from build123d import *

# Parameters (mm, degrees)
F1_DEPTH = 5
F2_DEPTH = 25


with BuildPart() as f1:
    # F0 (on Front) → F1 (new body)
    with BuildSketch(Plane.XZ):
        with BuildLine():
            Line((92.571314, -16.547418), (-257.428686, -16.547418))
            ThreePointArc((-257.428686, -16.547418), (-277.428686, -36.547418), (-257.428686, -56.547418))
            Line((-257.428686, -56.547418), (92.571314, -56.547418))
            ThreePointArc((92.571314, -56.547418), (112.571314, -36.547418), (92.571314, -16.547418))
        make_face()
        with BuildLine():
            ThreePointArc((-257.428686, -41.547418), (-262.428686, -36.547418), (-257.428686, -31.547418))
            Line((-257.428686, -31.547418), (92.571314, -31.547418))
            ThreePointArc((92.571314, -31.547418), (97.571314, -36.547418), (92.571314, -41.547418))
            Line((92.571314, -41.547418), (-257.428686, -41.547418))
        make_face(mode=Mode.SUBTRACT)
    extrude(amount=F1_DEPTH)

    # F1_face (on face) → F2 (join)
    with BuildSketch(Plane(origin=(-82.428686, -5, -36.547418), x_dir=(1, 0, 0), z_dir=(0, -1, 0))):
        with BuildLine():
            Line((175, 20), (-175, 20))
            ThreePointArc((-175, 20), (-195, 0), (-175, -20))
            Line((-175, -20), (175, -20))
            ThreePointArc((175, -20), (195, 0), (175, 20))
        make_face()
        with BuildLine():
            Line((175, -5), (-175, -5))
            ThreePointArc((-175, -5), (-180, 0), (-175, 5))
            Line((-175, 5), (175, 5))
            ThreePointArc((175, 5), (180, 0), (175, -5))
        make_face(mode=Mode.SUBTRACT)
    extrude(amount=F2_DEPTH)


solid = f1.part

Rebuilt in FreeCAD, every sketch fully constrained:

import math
import FreeCAD as App
import Part
import Sketcher

V = App.Vector
Q = App.Units.Quantity

doc = App.newDocument("Part")
body = doc.addObject("PartDesign::Body", "Body")

sketch1 = doc.addObject("Sketcher::SketchObject", "Sketch")
body.addObject(sketch1)
sketch1.AttachmentSupport = (doc.XZ_Plane, [""])
sketch1.MapMode = "FlatFace"
sketch1.addGeometry([
    Part.LineSegment(V(92.571314, -16.547418, 0), V(-257.428686, -16.547418, 0)),
    Part.ArcOfCircle(Part.Circle(V(-257.428686, -36.547418, 0), V(0, 0, 1), 20), math.radians(90), math.radians(270)),
    Part.LineSegment(V(-257.428686, -56.547418, 0), V(92.571314, -56.547418, 0)),
    Part.ArcOfCircle(Part.Circle(V(92.571314, -36.547418, 0), V(0, 0, 1), 20), math.radians(-90), math.radians(90)),
    Part.LineSegment(V(92.571314, -41.547418, 0), V(-257.428686, -41.547418, 0)),
    Part.ArcOfCircle(Part.Circle(V(-257.428686, -36.547418, 0), V(0, 0, 1), 5), math.radians(90), math.radians(270)),
    Part.LineSegment(V(-257.428686, -31.547418, 0), V(92.571314, -31.547418, 0)),
    Part.ArcOfCircle(Part.Circle(V(92.571314, -36.547418, 0), V(0, 0, 1), 5), math.radians(-90), math.radians(90)),
], False)
sketch1.addConstraint([
    Sketcher.Constraint("Tangent", 0, 2, 1, 1),
    Sketcher.Constraint("Tangent", 1, 2, 2, 1),
    Sketcher.Constraint("Tangent", 2, 2, 3, 1),
    Sketcher.Constraint("Tangent", 3, 2, 0, 1),
    Sketcher.Constraint("Tangent", 4, 2, 5, 2),
    Sketcher.Constraint("Tangent", 5, 1, 6, 1),
    Sketcher.Constraint("Tangent", 6, 2, 7, 2),
    Sketcher.Constraint("Tangent", 7, 1, 4, 1),
    Sketcher.Constraint("Horizontal", 0),
    Sketcher.Constraint("Horizontal", 2),
    Sketcher.Constraint("Horizontal", 4),
    Sketcher.Constraint("Horizontal", 6),
    Sketcher.Constraint("Coincident", 5, 3, 1, 3),
    Sketcher.Constraint("Vertical", 7, 3, 2, 2),
    Sketcher.Constraint("Radius", 1, Q("20 mm")),
    Sketcher.Constraint("Radius", 5, Q("5 mm")),
    Sketcher.Constraint("DistanceX", 0, 2, 0, 1, Q("350 mm")),
    Sketcher.Constraint("DistanceY", 0, 2, -1, 1, Q("16.547418 mm")),
    Sketcher.Constraint("DistanceX", 1, 3, -1, 1, Q("257.428686 mm")),
])
pad1 = doc.addObject("PartDesign::Pad", "Pad")
body.addObject(pad1)
pad1.Profile = sketch1
pad1.Length = 5

sketch2 = doc.addObject("Sketcher::SketchObject", "Sketch001")
body.addObject(sketch2)
sketch2.AttachmentSupport = (doc.XZ_Plane, [""])
sketch2.MapMode = "FlatFace"
sketch2.AttachmentOffset = App.Placement(V(0, 0, 5), App.Rotation())
sketch2.addGeometry([
    Part.LineSegment(V(92.571314, -16.547418, 0), V(-257.428686, -16.547418, 0)),
    Part.ArcOfCircle(Part.Circle(V(-257.428686, -36.547418, 0), V(0, 0, 1), 20), math.radians(90), math.radians(270)),
    Part.LineSegment(V(-257.428686, -56.547418, 0), V(92.571314, -56.547418, 0)),
    Part.ArcOfCircle(Part.Circle(V(92.571314, -36.547418, 0), V(0, 0, 1), 20), math.radians(-90), math.radians(90)),
    Part.ArcOfCircle(Part.Circle(V(92.571314, -36.547418, 0), V(0, 0, 1), 5), math.radians(-90), math.radians(90)),
    Part.LineSegment(V(92.571314, -41.547418, 0), V(-257.428686, -41.547418, 0)),
    Part.ArcOfCircle(Part.Circle(V(-257.428686, -36.547418, 0), V(0, 0, 1), 5), math.radians(90), math.radians(270)),
    Part.LineSegment(V(-257.428686, -31.547418, 0), V(92.571314, -31.547418, 0)),
], False)
sketch2.addConstraint([
    Sketcher.Constraint("Tangent", 0, 2, 1, 1),
    Sketcher.Constraint("Tangent", 1, 2, 2, 1),
    Sketcher.Constraint("Tangent", 2, 2, 3, 1),
    Sketcher.Constraint("Tangent", 3, 2, 0, 1),
    Sketcher.Constraint("Tangent", 4, 1, 5, 1),
    Sketcher.Constraint("Tangent", 5, 2, 6, 2),
    Sketcher.Constraint("Tangent", 6, 1, 7, 1),
    Sketcher.Constraint("Tangent", 7, 2, 4, 2),
    Sketcher.Constraint("Horizontal", 0),
    Sketcher.Constraint("Horizontal", 2),
    Sketcher.Constraint("Horizontal", 5),
    Sketcher.Constraint("Horizontal", 7),
    Sketcher.Constraint("Coincident", 4, 3, 3, 3),
    Sketcher.Constraint("Vertical", 6, 3, 0, 2),
    Sketcher.Constraint("Radius", 1, Q("20 mm")),
    Sketcher.Constraint("Radius", 4, Q("5 mm")),
    Sketcher.Constraint("DistanceX", 0, 2, 0, 1, Q("350 mm")),
    Sketcher.Constraint("DistanceY", 0, 2, -1, 1, Q("16.547418 mm")),
    Sketcher.Constraint("DistanceX", 1, 3, -1, 1, Q("257.428686 mm")),
])
pad2 = doc.addObject("PartDesign::Pad", "Pad001")
body.addObject(pad2)
pad2.Profile = sketch2
pad2.Length = 25

doc.recompute()
